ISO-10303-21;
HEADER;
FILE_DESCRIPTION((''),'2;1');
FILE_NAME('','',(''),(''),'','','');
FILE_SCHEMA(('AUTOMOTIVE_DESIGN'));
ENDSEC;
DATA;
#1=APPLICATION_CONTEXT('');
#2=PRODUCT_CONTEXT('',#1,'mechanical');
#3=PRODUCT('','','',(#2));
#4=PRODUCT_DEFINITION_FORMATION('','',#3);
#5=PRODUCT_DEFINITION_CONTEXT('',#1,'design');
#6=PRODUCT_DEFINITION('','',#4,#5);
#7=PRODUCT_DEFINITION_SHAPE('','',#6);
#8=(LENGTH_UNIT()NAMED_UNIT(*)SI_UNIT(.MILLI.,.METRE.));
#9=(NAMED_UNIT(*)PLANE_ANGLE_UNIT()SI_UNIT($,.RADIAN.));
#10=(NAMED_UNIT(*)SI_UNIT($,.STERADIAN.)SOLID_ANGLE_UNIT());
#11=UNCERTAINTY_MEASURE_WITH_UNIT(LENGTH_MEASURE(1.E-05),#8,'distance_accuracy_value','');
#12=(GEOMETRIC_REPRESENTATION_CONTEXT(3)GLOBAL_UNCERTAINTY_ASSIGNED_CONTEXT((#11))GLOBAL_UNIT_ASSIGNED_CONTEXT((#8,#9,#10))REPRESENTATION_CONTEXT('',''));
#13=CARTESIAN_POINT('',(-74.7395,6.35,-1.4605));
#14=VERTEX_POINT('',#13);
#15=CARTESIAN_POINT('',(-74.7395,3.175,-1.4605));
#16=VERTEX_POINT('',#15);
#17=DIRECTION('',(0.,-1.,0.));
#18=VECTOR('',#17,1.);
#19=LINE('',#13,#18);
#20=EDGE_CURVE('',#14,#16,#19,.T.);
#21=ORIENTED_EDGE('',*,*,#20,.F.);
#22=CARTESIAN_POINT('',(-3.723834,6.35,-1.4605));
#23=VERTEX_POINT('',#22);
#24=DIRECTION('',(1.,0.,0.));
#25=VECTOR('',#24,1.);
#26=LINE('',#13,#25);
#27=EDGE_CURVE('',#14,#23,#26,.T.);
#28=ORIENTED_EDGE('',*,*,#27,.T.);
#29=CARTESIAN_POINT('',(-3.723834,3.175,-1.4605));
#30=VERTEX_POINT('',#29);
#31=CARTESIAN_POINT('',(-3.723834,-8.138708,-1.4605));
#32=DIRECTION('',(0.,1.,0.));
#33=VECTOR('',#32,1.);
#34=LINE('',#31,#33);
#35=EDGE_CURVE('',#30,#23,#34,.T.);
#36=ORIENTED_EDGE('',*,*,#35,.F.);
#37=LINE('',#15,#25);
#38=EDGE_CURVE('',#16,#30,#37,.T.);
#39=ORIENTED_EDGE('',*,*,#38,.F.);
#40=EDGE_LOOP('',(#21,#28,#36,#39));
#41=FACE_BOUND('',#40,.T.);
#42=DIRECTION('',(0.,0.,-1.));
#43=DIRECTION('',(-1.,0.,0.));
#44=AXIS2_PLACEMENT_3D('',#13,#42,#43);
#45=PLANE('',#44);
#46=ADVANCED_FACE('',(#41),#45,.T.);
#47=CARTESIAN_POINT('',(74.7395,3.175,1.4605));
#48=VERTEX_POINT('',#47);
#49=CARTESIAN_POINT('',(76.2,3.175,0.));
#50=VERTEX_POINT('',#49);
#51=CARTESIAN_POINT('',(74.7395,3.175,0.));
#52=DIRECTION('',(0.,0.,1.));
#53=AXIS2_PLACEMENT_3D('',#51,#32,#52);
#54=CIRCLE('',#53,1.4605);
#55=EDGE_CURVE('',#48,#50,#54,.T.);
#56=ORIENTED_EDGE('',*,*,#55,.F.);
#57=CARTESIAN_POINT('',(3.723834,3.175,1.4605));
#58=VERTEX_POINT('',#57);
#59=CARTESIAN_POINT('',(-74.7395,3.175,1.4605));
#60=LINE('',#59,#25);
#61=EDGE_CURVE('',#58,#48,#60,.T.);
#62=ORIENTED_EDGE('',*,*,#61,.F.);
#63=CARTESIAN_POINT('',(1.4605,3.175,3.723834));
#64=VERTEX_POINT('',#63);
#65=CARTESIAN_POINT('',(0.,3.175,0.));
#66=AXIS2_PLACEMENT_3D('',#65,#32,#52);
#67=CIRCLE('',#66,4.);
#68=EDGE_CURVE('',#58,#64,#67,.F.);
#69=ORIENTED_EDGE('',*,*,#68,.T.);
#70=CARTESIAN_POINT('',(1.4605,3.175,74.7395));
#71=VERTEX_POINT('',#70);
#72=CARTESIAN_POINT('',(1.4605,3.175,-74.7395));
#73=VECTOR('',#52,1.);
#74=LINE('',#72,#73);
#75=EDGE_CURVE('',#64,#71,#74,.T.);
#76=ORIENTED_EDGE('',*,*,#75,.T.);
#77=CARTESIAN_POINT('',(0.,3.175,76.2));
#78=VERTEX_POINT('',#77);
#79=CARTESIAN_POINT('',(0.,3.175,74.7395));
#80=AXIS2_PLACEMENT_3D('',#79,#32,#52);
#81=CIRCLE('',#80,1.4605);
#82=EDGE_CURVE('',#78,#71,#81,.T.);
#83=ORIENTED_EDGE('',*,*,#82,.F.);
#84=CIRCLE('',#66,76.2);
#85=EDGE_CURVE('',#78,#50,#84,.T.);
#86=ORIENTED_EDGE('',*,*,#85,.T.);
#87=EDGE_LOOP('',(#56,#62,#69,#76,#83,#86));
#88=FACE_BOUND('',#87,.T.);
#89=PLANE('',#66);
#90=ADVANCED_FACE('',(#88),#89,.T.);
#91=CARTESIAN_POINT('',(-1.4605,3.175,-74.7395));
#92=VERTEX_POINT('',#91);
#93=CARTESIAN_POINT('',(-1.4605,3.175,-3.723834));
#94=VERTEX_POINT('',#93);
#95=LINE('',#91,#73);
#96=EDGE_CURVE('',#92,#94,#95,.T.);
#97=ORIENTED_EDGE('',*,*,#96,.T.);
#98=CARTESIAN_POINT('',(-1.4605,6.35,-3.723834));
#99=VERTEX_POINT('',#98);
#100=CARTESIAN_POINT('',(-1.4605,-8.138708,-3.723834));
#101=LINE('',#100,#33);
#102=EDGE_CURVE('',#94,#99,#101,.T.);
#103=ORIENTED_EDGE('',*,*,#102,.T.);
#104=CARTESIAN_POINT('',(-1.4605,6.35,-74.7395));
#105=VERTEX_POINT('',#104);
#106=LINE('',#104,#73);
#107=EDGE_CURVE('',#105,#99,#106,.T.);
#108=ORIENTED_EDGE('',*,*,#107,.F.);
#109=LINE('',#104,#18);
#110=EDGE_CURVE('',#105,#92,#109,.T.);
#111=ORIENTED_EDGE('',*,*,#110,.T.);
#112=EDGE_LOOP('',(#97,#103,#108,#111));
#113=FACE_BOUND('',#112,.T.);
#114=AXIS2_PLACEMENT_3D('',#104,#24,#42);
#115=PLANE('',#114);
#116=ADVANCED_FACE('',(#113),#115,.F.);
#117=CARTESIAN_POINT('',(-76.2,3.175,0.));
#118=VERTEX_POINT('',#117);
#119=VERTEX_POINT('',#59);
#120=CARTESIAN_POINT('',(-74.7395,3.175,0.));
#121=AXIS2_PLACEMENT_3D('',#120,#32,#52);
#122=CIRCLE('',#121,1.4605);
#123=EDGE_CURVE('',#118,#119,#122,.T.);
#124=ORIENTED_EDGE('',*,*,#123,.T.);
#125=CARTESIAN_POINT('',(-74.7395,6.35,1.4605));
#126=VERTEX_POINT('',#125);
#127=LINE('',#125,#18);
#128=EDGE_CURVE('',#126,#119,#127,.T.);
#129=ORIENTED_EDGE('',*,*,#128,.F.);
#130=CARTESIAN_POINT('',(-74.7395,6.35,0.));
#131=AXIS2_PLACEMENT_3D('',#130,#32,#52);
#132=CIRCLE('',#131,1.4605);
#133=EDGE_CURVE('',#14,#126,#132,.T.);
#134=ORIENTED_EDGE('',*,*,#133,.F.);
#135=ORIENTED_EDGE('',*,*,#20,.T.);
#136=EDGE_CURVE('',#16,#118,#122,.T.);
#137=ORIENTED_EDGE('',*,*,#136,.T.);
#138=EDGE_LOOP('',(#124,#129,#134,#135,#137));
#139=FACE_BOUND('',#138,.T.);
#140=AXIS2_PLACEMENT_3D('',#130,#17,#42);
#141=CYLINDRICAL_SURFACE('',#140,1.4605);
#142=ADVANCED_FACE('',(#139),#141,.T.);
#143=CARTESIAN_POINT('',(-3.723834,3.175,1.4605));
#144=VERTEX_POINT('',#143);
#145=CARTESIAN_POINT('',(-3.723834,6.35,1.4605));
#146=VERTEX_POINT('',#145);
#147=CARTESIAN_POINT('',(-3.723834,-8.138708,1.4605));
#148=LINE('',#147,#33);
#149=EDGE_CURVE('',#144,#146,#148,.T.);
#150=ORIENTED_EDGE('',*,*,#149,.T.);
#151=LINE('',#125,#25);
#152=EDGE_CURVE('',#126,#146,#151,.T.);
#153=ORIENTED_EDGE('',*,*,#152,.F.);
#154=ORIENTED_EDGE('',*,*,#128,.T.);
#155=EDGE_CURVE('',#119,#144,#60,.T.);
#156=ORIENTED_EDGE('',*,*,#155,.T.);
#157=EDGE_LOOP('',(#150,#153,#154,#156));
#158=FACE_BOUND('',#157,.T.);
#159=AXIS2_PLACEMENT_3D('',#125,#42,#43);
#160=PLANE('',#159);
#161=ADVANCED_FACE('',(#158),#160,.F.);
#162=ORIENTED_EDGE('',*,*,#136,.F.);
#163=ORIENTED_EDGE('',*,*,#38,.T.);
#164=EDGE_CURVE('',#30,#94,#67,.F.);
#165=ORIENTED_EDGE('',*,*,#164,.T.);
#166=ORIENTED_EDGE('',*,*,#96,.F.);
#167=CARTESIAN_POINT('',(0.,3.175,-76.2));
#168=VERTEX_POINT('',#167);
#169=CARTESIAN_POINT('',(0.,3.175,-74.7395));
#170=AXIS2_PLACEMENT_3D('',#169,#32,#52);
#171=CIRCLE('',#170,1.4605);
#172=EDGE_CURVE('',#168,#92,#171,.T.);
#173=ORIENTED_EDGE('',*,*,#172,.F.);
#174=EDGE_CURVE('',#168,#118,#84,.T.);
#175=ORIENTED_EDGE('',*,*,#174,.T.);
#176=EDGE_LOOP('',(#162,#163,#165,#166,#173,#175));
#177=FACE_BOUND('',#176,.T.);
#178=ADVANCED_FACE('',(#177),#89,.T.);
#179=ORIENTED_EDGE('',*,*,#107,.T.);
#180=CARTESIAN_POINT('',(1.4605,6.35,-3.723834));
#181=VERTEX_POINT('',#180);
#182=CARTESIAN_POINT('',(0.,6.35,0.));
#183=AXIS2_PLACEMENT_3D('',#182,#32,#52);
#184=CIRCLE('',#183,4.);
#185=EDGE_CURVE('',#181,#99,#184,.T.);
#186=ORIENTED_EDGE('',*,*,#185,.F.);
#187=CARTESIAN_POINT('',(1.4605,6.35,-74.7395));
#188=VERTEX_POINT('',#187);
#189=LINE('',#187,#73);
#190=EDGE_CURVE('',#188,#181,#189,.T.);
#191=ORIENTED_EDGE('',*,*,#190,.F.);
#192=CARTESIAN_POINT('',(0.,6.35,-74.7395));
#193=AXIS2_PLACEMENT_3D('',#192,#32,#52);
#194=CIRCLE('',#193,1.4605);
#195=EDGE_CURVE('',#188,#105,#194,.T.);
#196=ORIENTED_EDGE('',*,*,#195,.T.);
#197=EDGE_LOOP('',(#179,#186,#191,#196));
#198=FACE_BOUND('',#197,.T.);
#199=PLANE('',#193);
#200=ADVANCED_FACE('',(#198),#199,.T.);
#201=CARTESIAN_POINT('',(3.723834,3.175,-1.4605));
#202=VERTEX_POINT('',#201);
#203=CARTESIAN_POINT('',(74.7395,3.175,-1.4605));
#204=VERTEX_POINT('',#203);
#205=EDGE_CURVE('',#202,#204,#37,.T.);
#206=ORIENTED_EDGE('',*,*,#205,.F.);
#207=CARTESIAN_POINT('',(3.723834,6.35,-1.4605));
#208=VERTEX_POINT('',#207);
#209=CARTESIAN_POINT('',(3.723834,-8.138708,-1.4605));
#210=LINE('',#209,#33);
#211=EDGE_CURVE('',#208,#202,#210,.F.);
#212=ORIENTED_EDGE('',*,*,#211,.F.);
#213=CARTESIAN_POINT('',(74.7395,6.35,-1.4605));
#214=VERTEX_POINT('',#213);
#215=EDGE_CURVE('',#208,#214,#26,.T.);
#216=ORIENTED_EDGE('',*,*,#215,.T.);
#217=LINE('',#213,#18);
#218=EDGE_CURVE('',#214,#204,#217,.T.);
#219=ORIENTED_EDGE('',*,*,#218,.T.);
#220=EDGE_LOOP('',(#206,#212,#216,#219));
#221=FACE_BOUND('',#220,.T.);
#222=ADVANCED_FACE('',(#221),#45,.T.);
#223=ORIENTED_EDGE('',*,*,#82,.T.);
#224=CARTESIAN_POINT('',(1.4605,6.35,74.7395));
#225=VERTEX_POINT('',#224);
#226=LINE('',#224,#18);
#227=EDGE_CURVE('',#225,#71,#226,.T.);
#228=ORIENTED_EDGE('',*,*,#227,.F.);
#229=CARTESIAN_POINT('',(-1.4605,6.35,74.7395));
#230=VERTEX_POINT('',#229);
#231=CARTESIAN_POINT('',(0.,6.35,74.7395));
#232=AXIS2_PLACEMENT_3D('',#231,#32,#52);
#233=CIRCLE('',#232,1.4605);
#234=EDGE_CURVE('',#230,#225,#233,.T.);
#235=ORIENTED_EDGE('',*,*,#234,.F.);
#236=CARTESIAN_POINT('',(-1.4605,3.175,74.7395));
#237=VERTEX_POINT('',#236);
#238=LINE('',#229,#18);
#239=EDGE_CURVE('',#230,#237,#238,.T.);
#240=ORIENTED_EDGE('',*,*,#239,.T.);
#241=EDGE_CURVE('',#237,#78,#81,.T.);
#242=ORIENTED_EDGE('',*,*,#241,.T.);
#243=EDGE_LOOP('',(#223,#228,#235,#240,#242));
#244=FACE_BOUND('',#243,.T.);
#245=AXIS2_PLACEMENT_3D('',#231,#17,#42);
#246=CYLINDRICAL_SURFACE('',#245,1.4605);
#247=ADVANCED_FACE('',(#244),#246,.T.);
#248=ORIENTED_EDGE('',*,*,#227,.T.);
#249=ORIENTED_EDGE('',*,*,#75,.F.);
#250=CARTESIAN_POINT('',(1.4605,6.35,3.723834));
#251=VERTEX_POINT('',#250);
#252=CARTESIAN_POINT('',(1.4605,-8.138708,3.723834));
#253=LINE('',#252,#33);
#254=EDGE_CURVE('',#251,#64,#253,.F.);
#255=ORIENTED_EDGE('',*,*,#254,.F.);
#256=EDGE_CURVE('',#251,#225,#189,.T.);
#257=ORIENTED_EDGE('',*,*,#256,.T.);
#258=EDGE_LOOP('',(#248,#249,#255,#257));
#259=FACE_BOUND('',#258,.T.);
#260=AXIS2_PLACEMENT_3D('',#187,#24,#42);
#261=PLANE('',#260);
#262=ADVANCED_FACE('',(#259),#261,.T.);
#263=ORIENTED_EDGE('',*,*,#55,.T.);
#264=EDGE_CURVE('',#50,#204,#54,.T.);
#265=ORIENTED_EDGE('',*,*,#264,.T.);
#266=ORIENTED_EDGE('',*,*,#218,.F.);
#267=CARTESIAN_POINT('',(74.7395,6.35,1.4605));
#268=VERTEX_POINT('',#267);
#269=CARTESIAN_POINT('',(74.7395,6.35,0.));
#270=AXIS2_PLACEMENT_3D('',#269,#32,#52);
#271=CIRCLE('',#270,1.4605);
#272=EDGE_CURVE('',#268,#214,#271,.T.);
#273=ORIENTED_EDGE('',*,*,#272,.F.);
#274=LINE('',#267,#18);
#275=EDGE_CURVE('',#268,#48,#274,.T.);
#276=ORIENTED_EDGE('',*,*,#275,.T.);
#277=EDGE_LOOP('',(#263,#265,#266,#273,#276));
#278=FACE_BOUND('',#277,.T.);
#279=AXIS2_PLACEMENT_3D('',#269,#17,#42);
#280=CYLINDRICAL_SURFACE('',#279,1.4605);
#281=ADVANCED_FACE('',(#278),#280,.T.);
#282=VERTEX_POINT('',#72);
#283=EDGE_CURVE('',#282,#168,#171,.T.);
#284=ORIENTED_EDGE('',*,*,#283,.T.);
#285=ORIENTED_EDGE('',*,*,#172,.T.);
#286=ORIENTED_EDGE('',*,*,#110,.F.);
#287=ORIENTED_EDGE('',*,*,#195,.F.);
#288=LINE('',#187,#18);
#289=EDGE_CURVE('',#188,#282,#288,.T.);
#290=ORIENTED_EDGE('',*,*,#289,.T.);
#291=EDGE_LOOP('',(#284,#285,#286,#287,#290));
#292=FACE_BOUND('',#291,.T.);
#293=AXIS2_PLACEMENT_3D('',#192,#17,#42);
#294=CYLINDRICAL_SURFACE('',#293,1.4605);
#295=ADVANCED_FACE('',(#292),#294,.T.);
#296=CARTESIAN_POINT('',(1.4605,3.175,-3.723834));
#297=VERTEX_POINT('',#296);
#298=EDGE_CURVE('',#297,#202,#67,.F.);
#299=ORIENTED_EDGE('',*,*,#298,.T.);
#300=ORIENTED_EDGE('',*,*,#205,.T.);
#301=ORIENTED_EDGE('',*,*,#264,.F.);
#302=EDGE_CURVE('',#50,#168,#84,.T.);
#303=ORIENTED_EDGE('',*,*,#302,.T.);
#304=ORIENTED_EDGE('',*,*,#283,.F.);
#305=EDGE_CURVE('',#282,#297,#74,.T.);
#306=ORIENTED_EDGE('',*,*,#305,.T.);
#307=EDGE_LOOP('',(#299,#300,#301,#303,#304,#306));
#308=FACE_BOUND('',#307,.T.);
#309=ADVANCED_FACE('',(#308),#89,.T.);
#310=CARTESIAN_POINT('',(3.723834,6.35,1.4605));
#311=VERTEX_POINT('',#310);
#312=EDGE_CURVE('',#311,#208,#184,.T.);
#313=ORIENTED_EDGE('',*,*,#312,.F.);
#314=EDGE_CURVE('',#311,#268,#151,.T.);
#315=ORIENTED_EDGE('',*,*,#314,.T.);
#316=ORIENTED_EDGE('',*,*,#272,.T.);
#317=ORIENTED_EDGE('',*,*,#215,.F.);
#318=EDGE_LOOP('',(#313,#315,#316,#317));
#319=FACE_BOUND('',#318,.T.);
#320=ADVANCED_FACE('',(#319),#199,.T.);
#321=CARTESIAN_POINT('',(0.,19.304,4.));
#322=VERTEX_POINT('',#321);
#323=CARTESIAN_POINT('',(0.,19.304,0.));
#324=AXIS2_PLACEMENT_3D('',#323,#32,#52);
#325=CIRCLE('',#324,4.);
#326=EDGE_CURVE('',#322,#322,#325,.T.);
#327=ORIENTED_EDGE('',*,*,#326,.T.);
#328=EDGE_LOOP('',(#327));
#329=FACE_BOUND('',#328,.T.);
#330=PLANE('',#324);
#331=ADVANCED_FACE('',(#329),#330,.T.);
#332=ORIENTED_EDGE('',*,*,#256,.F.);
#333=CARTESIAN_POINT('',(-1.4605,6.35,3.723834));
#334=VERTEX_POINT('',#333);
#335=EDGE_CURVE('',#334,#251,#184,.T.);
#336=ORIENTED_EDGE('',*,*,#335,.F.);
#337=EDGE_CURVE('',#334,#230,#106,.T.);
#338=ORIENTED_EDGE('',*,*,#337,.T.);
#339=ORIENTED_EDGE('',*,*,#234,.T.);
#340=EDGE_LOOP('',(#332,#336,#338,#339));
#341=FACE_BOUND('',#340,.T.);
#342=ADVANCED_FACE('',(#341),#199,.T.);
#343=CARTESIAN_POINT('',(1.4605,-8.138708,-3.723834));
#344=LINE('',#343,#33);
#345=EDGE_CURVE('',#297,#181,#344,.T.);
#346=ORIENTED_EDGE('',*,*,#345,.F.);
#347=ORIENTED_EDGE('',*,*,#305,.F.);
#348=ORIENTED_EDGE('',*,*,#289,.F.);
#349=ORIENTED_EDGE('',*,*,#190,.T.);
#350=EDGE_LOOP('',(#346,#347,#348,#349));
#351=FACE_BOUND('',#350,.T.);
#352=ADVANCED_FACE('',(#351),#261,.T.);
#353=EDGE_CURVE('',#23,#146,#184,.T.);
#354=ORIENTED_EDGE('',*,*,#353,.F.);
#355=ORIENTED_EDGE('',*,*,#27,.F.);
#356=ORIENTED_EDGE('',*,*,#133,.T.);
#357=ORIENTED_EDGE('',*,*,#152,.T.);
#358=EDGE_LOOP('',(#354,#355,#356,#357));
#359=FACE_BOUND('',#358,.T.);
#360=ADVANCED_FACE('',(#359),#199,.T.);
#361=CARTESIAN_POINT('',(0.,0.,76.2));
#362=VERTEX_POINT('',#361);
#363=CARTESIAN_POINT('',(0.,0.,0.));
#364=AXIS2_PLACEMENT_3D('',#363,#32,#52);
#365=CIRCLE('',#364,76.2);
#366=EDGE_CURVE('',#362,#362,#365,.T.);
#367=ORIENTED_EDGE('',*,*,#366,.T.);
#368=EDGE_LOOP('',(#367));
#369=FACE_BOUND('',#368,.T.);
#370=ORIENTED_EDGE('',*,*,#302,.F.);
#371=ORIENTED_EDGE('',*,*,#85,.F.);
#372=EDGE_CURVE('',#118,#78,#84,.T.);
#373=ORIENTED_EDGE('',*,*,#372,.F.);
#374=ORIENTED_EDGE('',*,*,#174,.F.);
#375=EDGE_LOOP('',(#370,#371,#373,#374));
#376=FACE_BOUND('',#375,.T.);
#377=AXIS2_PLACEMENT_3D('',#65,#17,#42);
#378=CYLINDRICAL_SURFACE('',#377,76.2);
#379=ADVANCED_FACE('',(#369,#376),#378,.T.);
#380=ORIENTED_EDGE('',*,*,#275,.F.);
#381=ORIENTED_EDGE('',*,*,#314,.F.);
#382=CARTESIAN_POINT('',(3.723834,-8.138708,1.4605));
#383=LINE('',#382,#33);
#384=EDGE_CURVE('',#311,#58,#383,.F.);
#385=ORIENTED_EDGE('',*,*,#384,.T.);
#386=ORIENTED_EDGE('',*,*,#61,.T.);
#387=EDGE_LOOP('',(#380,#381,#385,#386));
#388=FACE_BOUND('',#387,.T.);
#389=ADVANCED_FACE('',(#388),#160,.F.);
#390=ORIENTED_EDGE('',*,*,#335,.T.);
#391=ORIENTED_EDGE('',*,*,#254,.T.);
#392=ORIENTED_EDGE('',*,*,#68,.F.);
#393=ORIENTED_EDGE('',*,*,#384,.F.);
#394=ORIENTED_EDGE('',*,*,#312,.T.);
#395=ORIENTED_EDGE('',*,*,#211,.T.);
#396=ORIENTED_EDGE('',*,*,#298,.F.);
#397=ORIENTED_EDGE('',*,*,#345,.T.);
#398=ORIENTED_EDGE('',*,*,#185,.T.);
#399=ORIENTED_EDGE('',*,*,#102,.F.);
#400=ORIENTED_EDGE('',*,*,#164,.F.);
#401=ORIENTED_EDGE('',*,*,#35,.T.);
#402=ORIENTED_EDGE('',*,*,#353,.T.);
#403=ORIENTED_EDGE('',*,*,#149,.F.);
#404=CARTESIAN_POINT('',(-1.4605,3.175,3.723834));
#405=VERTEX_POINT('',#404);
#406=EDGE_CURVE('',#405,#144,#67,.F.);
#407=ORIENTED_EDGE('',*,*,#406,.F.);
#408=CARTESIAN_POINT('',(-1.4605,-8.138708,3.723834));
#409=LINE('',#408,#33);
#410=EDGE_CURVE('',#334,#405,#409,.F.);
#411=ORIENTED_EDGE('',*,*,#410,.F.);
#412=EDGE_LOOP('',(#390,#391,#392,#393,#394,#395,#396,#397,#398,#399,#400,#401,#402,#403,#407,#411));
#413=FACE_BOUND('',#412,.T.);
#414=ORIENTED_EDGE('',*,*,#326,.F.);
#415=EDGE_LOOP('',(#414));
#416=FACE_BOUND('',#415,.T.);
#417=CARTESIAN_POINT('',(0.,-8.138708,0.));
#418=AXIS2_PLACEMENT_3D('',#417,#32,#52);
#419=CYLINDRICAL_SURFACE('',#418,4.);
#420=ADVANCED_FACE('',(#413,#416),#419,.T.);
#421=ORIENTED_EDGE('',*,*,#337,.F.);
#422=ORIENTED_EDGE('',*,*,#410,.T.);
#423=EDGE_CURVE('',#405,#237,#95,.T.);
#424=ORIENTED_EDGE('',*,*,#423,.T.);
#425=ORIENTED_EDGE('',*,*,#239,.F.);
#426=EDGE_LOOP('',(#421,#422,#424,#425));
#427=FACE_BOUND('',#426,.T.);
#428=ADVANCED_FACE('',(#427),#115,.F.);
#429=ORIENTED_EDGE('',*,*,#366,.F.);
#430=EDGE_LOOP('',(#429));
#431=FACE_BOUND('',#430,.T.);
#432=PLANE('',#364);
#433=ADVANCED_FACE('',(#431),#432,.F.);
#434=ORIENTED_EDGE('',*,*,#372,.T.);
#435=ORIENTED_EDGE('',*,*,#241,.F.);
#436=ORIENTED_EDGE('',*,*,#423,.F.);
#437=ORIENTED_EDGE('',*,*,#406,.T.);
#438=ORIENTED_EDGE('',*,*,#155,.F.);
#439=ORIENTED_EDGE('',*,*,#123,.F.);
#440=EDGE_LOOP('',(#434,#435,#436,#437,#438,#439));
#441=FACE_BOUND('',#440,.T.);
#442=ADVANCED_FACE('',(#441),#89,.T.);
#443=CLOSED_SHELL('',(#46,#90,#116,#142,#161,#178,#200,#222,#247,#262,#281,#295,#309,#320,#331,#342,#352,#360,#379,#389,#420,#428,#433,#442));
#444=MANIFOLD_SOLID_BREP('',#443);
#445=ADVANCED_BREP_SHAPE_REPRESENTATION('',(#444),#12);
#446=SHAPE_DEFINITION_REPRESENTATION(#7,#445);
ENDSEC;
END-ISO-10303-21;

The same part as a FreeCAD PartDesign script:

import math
import FreeCAD as App
import Part
import Sketcher
Q = App.Units.Quantity

doc = App.newDocument("Part")
body = doc.addObject("PartDesign::Body", "Body")

# Sketch on XZ plane
sketch1 = doc.addObject("Sketcher::SketchObject", "Sketch")
body.addObject(sketch1)
sketch1.AttachmentSupport = (doc.XZ_Plane, [""])
sketch1.MapMode = "FlatFace"
sketch1.addGeometry(Part.Circle(App.Vector(0, 0, 0), App.Vector(0, 0, 1), 76.2), False)
sketch1.addConstraint([
    Sketcher.Constraint("Coincident", 0, 3, -1, 1),
    Sketcher.Constraint("Diameter", 0, Q("6 in")),
])
pad1 = doc.addObject("PartDesign::Pad", "Pad")
body.addObject(pad1)
pad1.Profile = sketch1
pad1.Length = Q("0.125 in")
pad1.Reversed = True

# Sketch on XZ plane
sketch2 = doc.addObject("Sketcher::SketchObject", "Sketch001")
body.addObject(sketch2)
sketch2.AttachmentSupport = (doc.XZ_Plane, [""])
sketch2.MapMode = "FlatFace"
sketch2.AttachmentOffset = App.Placement(App.Vector(0, 0, -0.125 * 25.4), App.Rotation())
sketch2.addGeometry([
    Part.ArcOfCircle(Part.Circle(App.Vector(-74.7395, 0, 0), App.Vector(0, 0, 1), 1.4605), math.radians(90), math.radians(270)),  # 0
    Part.LineSegment(App.Vector(-74.7395, 1.4605, 0), App.Vector(-1.4605, 1.4605, 0)),  # 1
    Part.LineSegment(App.Vector(-1.4605, 1.4605, 0), App.Vector(-1.4605, 74.7395, 0)),  # 2
    Part.ArcOfCircle(Part.Circle(App.Vector(0, 74.7395, 0), App.Vector(0, 0, 1), 1.4605), math.radians(0), math.radians(180)),  # 3
    Part.LineSegment(App.Vector(1.4605, 74.7395, 0), App.Vector(1.4605, 1.4605, 0)),  # 4
    Part.LineSegment(App.Vector(1.4605, 1.4605, 0), App.Vector(74.7395, 1.4605, 0)),  # 5
    Part.ArcOfCircle(Part.Circle(App.Vector(74.7395, 0, 0), App.Vector(0, 0, 1), 1.4605), math.radians(-90), math.radians(90)),  # 6
    Part.LineSegment(App.Vector(74.7395, -1.4605, 0), App.Vector(1.4605, -1.4605, 0)),  # 7
    Part.LineSegment(App.Vector(1.4605, -1.4605, 0), App.Vector(1.4605, -74.7395, 0)),  # 8
    Part.ArcOfCircle(Part.Circle(App.Vector(0, -74.7395, 0), App.Vector(0, 0, 1), 1.4605), math.radians(180), math.radians(360)),  # 9
    Part.LineSegment(App.Vector(-1.4605, -74.7395, 0), App.Vector(-1.4605, -1.4605, 0)),  # 10
    Part.LineSegment(App.Vector(-1.4605, -1.4605, 0), App.Vector(-74.7395, -1.4605, 0)),  # 11
], False)
sketch2.addConstraint([
    Sketcher.Constraint("Tangent", 0, 1, 1, 1),
    Sketcher.Constraint("Coincident", 1, 2, 2, 1),
    Sketcher.Constraint("Tangent", 2, 2, 3, 2),
    Sketcher.Constraint("Tangent", 3, 1, 4, 1),
    Sketcher.Constraint("Coincident", 4, 2, 5, 1),
    Sketcher.Constraint("Tangent", 5, 2, 6, 2),
    Sketcher.Constraint("Tangent", 6, 1, 7, 1),
    Sketcher.Constraint("Coincident", 7, 2, 8, 1),
    Sketcher.Constraint("Tangent", 8, 2, 9, 2),
    Sketcher.Constraint("Tangent", 9, 1, 10, 1),
    Sketcher.Constraint("Coincident", 10, 2, 11, 1),
    Sketcher.Constraint("Tangent", 11, 2, 0, 2),
    Sketcher.Constraint("Horizontal", 1),
    Sketcher.Constraint("Vertical", 2),
    Sketcher.Constraint("Vertical", 4),
    Sketcher.Constraint("Horizontal", 5),
    Sketcher.Constraint("Horizontal", 7),
    Sketcher.Constraint("Vertical", 8),
    Sketcher.Constraint("Vertical", 10),
    Sketcher.Constraint("Horizontal", 11),
    Sketcher.Constraint("Equal", 0, 3),
    Sketcher.Constraint("Equal", 3, 6),
    Sketcher.Constraint("Equal", 6, 9),
    Sketcher.Constraint("Symmetric", 0, 3, 6, 3, -1, 1),
    Sketcher.Constraint("Symmetric", 3, 3, 9, 3, -1, 1),
    Sketcher.Constraint("Symmetric", 1, 2, 4, 2, -2),
    Sketcher.Constraint("Equal", 11, 2),
    Sketcher.Constraint("DistanceY", 9, 3, 0, 1, Q("3 in")),
    Sketcher.Constraint("Radius", 0, Q("0.0575 in")),
])
pad2 = doc.addObject("PartDesign::Pad", "Pad001")
body.addObject(pad2)
pad2.Profile = sketch2
pad2.Length = Q("0.125 in")
pad2.Reversed = True

# Sketch on XZ plane
sketch3 = doc.addObject("Sketcher::SketchObject", "Sketch002")
body.addObject(sketch3)
sketch3.AttachmentSupport = (doc.XZ_Plane, [""])
sketch3.MapMode = "FlatFace"
sketch3.AttachmentOffset = App.Placement(App.Vector(0, 0, -0.25 * 25.4), App.Rotation())
sketch3.addGeometry(Part.Circle(App.Vector(0, 0, 0), App.Vector(0, 0, 1), 4), False)
sketch3.addConstraint([
    Sketcher.Constraint("Coincident", 0, 3, -1, 1),
    Sketcher.Constraint("Diameter", 0, 8.0),
])
pad3 = doc.addObject("PartDesign::Pad", "Pad002")
body.addObject(pad3)
pad3.Profile = sketch3
pad3.Type = "TwoLengths"
pad3.Length = Q("0.51 in")
pad3.Length2 = Q("0.25 in")
pad3.Reversed = True

doc.recompute()
